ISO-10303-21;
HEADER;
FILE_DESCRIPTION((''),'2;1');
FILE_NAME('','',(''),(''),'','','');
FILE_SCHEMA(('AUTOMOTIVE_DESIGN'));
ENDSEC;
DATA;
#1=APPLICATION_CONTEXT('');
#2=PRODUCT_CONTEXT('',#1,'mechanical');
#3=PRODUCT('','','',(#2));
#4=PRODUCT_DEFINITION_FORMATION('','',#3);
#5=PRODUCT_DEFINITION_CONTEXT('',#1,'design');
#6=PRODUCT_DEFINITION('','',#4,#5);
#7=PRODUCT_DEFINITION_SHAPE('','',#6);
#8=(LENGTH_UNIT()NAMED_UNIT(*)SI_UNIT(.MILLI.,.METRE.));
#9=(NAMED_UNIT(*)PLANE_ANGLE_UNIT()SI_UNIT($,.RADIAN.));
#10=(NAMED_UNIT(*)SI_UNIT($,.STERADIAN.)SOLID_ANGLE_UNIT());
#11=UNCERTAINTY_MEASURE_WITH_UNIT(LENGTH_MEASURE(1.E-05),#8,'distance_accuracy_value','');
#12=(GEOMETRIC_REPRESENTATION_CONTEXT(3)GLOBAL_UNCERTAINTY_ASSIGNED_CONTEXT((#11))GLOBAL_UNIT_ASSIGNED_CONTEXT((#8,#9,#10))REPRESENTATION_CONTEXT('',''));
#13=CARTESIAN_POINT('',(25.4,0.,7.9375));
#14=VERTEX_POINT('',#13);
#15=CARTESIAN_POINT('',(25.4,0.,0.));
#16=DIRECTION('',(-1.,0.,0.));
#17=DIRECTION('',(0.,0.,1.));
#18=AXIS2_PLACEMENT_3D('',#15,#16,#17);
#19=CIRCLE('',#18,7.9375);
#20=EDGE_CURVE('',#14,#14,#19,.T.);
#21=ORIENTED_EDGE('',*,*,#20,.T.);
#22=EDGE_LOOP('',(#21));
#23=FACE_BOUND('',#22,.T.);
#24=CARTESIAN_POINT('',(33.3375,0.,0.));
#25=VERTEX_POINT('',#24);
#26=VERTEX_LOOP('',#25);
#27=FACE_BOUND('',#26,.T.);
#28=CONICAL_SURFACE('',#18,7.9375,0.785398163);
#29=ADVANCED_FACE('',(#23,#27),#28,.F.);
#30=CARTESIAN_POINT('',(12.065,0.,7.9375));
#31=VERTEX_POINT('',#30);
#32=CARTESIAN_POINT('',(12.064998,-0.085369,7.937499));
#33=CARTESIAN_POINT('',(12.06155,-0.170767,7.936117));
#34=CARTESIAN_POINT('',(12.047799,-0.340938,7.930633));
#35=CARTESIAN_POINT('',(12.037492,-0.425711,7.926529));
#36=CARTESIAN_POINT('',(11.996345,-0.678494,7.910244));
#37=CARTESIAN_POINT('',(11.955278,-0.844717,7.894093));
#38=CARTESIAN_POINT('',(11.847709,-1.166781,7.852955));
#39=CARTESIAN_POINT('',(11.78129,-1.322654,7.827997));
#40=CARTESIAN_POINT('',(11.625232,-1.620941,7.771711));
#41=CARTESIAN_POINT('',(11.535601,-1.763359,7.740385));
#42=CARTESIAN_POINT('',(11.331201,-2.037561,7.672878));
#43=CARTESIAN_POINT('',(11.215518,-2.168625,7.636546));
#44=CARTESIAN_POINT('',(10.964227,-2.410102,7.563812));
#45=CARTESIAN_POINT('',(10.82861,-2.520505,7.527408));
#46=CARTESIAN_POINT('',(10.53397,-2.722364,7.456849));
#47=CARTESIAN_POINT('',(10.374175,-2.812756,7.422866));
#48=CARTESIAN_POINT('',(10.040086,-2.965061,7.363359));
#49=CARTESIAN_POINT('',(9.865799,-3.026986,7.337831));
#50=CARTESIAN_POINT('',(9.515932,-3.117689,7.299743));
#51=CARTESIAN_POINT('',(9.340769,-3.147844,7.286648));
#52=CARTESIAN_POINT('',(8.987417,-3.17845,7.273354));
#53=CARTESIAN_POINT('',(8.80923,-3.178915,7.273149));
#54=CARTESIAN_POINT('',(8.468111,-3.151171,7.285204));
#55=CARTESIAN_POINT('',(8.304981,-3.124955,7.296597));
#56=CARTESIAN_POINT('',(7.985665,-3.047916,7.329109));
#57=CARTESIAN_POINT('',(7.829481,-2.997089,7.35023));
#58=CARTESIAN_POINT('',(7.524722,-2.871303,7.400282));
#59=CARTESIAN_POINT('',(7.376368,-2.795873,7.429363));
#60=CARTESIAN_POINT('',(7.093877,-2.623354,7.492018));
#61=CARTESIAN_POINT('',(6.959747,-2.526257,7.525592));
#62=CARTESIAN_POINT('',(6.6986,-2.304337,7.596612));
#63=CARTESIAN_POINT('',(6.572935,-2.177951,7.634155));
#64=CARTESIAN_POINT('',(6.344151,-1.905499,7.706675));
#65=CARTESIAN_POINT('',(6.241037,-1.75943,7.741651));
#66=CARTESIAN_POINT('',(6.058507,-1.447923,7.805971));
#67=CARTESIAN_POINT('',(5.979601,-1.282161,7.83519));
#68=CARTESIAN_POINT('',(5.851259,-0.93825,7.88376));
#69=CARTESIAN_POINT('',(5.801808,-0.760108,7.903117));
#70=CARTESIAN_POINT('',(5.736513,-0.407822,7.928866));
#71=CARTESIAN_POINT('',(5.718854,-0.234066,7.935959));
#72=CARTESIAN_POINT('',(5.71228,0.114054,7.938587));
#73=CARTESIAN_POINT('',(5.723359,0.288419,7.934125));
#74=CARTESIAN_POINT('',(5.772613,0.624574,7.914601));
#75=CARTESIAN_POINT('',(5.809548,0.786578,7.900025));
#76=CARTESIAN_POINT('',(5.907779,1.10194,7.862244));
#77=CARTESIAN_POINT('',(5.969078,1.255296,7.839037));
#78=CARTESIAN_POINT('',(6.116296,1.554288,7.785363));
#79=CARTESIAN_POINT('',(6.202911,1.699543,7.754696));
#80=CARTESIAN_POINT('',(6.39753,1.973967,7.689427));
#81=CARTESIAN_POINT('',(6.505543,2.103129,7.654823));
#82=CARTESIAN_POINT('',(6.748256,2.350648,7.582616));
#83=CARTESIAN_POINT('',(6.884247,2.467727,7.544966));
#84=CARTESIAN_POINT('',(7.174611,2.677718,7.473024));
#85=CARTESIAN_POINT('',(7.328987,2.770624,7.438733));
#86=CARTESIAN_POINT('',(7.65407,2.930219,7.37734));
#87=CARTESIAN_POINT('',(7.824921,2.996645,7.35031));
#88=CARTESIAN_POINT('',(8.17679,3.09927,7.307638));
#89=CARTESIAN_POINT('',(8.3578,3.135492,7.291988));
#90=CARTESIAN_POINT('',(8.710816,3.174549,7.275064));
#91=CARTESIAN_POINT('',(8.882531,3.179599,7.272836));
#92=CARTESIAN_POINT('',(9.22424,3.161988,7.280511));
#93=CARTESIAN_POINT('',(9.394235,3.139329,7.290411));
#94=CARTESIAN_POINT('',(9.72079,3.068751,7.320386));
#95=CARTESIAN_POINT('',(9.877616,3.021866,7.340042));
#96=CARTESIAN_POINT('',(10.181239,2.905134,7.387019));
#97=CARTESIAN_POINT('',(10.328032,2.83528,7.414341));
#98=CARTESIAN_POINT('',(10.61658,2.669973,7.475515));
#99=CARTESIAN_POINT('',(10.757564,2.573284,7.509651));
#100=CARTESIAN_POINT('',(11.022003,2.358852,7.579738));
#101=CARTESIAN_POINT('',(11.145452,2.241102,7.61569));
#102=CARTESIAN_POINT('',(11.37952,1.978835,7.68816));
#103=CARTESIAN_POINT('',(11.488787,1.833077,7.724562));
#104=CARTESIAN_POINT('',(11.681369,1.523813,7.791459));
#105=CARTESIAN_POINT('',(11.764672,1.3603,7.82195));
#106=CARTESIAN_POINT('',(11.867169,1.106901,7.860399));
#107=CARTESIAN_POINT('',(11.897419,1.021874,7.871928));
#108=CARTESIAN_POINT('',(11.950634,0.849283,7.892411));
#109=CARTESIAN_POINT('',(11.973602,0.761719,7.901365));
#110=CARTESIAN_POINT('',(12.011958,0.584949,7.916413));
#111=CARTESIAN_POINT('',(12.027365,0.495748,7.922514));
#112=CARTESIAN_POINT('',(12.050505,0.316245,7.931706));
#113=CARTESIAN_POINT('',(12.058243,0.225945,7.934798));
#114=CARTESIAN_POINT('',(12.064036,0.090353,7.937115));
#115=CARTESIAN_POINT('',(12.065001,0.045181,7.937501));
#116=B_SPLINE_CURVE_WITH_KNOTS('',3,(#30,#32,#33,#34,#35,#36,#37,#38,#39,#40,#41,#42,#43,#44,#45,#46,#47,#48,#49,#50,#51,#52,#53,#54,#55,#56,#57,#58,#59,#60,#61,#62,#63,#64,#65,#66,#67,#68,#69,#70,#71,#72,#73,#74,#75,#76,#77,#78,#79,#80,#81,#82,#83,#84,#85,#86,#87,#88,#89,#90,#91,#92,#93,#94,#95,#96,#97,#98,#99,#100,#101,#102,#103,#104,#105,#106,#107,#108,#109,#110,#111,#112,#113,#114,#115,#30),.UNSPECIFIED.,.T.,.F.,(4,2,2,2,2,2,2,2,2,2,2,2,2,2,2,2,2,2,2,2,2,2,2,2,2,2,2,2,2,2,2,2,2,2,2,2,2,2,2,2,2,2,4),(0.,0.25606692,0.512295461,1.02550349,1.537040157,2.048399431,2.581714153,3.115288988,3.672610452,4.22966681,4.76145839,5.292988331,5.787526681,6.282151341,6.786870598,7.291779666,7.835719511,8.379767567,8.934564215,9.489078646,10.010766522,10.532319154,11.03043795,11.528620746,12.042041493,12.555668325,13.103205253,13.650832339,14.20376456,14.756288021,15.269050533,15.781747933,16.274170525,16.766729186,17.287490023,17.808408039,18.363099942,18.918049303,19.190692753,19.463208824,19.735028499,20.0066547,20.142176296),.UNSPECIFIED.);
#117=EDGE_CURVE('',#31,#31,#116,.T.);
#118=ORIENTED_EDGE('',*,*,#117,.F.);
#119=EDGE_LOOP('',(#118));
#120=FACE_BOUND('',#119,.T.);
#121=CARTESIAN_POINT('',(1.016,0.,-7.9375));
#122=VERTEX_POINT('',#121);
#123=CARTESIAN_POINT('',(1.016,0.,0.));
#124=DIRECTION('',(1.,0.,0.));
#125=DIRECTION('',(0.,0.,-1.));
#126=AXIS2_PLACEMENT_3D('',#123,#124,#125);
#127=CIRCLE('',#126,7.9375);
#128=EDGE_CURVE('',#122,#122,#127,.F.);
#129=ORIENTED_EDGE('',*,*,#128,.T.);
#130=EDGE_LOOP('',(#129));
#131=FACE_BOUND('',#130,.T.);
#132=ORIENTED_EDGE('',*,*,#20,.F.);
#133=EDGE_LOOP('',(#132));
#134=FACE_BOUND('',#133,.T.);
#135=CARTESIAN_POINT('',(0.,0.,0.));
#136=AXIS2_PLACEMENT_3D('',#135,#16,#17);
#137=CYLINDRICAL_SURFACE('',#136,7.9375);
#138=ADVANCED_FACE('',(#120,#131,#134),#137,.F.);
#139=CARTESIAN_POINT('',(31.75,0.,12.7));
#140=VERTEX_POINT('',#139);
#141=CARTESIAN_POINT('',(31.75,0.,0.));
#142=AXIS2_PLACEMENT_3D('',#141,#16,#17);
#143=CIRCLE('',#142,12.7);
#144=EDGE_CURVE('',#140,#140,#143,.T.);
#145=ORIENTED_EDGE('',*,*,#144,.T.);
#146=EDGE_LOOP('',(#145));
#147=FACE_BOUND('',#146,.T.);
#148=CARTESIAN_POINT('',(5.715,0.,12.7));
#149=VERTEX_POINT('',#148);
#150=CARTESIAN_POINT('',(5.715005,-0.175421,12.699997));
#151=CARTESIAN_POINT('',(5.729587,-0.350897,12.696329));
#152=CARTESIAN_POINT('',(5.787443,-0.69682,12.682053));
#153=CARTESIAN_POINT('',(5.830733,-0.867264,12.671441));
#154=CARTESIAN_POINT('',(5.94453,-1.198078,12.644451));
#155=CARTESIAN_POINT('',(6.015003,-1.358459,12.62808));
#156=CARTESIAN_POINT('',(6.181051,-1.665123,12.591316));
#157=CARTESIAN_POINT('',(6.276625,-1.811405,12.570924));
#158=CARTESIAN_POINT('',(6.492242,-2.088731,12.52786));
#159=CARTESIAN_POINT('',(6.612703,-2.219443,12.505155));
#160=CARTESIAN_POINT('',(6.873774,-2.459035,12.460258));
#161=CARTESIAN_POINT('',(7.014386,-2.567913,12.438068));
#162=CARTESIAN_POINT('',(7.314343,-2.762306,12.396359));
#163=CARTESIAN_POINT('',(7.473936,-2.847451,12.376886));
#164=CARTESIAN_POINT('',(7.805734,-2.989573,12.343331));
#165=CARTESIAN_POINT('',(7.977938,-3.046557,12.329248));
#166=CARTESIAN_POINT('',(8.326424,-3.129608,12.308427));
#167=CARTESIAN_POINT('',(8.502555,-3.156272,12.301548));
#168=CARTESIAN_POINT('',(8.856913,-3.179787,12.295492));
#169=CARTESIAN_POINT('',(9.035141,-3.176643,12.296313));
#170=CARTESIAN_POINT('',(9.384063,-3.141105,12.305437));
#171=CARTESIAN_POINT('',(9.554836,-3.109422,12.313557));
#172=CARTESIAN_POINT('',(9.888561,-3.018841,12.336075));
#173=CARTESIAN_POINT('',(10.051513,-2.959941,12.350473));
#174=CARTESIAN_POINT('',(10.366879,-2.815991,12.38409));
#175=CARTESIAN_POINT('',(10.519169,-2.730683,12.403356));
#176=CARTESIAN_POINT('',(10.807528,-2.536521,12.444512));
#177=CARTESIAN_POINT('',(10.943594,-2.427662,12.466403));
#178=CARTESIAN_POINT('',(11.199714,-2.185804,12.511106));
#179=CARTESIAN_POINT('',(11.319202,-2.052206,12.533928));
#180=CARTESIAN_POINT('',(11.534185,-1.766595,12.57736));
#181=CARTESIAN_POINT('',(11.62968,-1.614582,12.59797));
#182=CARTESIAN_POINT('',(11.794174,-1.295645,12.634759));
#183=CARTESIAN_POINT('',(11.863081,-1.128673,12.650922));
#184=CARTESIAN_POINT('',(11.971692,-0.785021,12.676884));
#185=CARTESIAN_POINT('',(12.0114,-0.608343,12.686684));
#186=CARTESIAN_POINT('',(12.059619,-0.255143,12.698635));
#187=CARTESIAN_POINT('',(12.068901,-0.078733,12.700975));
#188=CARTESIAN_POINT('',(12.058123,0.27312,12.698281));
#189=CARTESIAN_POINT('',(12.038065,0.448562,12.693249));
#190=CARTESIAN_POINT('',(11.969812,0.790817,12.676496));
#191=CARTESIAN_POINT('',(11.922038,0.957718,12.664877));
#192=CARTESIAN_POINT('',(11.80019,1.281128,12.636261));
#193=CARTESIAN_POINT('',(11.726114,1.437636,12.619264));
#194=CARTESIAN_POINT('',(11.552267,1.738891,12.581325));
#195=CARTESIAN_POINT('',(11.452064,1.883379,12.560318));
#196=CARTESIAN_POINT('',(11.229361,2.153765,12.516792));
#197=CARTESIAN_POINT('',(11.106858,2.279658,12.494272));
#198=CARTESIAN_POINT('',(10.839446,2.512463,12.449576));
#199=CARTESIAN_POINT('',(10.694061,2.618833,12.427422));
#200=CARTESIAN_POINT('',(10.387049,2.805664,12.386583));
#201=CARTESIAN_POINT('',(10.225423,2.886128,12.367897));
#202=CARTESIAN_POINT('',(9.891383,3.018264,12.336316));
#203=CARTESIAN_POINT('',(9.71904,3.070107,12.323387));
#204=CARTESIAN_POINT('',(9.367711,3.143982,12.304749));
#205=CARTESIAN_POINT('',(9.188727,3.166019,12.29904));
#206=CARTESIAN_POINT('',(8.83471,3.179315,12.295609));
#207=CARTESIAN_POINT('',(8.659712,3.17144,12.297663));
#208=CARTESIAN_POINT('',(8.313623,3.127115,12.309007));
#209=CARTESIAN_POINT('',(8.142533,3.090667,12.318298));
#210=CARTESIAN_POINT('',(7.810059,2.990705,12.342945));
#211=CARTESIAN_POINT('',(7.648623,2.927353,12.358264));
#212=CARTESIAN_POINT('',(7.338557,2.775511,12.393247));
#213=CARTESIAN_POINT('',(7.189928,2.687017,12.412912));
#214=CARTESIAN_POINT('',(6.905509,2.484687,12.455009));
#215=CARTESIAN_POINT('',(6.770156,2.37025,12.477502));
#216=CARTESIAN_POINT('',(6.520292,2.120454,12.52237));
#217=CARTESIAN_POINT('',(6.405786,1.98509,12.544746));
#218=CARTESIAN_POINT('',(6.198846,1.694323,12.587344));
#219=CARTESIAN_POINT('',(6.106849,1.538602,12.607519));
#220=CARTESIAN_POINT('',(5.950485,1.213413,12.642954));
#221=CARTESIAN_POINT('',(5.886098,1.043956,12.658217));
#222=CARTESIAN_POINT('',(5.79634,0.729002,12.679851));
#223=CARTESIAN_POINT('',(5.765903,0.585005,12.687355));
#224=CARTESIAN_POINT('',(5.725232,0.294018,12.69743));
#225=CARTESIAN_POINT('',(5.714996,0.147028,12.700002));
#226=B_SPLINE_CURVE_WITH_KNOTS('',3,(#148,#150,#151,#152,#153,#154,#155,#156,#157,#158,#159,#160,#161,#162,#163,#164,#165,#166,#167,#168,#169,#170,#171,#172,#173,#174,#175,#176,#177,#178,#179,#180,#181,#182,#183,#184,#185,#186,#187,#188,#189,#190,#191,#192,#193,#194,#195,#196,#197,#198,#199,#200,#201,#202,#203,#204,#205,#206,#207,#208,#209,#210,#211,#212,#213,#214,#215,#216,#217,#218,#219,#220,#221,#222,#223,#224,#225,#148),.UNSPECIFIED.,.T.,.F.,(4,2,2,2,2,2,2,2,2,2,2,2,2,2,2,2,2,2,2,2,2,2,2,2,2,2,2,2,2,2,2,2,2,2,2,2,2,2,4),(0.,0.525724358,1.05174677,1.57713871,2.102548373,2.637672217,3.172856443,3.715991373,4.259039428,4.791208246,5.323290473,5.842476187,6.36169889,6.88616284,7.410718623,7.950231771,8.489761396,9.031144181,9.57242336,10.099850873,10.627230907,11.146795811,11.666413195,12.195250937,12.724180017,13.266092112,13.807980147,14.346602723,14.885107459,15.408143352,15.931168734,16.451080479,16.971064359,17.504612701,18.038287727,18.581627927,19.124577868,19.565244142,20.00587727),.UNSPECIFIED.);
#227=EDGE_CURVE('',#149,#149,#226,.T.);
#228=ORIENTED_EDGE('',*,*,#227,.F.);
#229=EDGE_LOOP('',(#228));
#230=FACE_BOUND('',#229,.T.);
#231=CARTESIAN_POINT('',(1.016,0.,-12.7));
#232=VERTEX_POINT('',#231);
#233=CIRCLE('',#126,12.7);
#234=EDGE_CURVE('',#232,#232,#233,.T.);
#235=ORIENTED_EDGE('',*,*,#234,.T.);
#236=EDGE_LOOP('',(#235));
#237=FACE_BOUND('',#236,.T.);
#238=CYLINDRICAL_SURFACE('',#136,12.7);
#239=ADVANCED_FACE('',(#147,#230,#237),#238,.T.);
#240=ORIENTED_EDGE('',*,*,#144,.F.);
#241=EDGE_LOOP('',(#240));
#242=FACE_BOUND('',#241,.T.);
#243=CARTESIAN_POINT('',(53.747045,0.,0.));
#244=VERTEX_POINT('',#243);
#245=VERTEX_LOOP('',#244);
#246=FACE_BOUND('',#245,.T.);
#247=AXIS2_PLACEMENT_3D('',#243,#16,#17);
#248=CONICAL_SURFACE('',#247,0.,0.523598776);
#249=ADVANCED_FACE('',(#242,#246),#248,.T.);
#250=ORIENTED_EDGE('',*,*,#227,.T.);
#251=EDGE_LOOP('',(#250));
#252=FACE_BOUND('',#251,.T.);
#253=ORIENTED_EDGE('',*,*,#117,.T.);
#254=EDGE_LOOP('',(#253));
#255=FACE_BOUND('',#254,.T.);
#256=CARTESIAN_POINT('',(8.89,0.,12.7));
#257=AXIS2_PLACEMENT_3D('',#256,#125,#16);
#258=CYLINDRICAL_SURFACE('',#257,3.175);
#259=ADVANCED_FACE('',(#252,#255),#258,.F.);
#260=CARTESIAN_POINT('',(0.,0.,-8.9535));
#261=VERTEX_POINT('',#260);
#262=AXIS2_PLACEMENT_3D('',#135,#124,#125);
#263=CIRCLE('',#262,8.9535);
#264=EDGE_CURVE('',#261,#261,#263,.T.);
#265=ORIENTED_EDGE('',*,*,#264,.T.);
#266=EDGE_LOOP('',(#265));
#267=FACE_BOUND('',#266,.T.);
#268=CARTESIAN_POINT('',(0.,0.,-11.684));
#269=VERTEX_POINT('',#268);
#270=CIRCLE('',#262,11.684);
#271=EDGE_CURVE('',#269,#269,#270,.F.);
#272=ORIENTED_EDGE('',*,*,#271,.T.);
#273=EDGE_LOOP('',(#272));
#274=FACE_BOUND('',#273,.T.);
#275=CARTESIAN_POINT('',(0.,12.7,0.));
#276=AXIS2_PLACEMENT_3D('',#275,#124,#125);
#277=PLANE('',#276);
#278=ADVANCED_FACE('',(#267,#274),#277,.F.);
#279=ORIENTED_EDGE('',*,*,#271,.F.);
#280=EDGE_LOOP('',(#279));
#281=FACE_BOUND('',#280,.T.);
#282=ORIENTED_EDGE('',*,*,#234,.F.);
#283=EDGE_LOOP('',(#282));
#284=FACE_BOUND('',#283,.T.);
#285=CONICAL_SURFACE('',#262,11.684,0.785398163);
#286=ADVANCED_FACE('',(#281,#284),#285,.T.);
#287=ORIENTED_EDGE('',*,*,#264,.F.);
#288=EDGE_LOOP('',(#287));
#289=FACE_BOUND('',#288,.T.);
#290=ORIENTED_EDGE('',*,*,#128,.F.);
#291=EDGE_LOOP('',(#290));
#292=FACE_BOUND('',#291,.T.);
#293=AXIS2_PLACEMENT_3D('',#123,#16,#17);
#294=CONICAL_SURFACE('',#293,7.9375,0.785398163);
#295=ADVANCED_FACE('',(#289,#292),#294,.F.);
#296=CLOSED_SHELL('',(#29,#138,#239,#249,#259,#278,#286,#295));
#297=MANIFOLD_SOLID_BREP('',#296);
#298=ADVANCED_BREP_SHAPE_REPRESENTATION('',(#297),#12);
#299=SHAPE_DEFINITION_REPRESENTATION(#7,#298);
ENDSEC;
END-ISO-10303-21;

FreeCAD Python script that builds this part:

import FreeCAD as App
import Part
import Sketcher

V = App.Vector
Q = App.Units.Quantity


def edges_at(feature, points):
    """Names of the edges that pass closest to the given points."""
    edges = feature.Shape.Edges
    near = lambda p: min(range(len(edges)), key=lambda i: edges[i].distToShape(Part.Vertex(*p))[0])
    return sorted({f"Edge{near(p) + 1}" for p in points})

doc = App.newDocument("Part")
body = doc.addObject("PartDesign::Body", "Body")

sketch1 = doc.addObject("Sketcher::SketchObject", "Sketch")
body.addObject(sketch1)
sketch1.AttachmentSupport = (doc.XY_Plane, [""])
sketch1.MapMode = "FlatFace"
sketch1.addGeometry([
    Part.LineSegment(V(31.8, 12.7, 0), V(0, 12.7, 0)),
    Part.LineSegment(V(0, 12.7, 0), V(0, 7.9, 0)),
    Part.LineSegment(V(0, 7.9, 0), V(25.4, 7.9, 0)),
    Part.LineSegment(V(25.4, 7.9, 0), V(33.3, 0, 0)),
    Part.LineSegment(V(33.3, 0, 0), V(53.7, 0, 0)),
    Part.LineSegment(V(53.7, 0, 0), V(31.8, 12.7, 0)),
], False)
sketch1.addConstraint([
    Sketcher.Constraint("Coincident", 0, 2, 1, 1),
    Sketcher.Constraint("Coincident", 1, 2, 2, 1),
    Sketcher.Constraint("Coincident", 2, 2, 3, 1),
    Sketcher.Constraint("Coincident", 3, 2, 4, 1),
    Sketcher.Constraint("Coincident", 4, 2, 5, 1),
    Sketcher.Constraint("Coincident", 5, 2, 0, 1),
    Sketcher.Constraint("Horizontal", 0),
    Sketcher.Constraint("Vertical", 1),
    Sketcher.Constraint("Horizontal", 2),
    Sketcher.Constraint("Horizontal", 4),
    Sketcher.Constraint("PointOnObject", 0, 2, -2),
    Sketcher.Constraint("PointOnObject", 3, 2, -1),
    Sketcher.Constraint("DistanceX", 2, 1, 2, 2, Q("1 in")),
    Sketcher.Constraint("Distance", 5, Q("1 in")),
    Sketcher.Constraint("Angle", 3, Q("-45 deg")),
    Sketcher.Constraint("Angle", 5, Q("150 deg")),
    Sketcher.Constraint("DistanceX", 0, 2, 0, 1, Q("1.25 in")),
    Sketcher.Constraint("DistanceY", 1, 2, 1, 1, Q("0.1875 in")),
])
revolution = doc.addObject("PartDesign::Revolution", "Revolution")
body.addObject(revolution)
revolution.Profile = sketch1
revolution.ReferenceAxis = (sketch1, ["H_Axis"])
revolution.Angle = 360

sketch2 = doc.addObject("Sketcher::SketchObject", "Sketch001")
body.addObject(sketch2)
sketch2.AttachmentSupport = (doc.XY_Plane, [""])
sketch2.MapMode = "FlatFace"
sketch2.addGeometry(Part.Circle(V(8.9, 0, 0), V(0, 0, 1), 3.2), False)
sketch2.addConstraint([
    Sketcher.Constraint("PointOnObject", 0, 3, -1),
    Sketcher.Constraint("Diameter", 0, Q("0.25 in")),
    Sketcher.Constraint("DistanceX", -1, 1, 0, 3, Q("0.35 in")),
])
pocket1 = doc.addObject("PartDesign::Pocket", "Pocket")
body.addObject(pocket1)
pocket1.Profile = sketch2
pocket1.Type = "ThroughAll"
pocket1.Reversed = True
doc.recompute()

chamfer = doc.addObject("PartDesign::Chamfer", "Chamfer")
body.addObject(chamfer)
chamfer.Base = (pocket1, edges_at(pocket1, [(0, 0, -12.7), (0, 0, -7.938)]))
chamfer.Size = Q("0.04 in")

doc.recompute()
